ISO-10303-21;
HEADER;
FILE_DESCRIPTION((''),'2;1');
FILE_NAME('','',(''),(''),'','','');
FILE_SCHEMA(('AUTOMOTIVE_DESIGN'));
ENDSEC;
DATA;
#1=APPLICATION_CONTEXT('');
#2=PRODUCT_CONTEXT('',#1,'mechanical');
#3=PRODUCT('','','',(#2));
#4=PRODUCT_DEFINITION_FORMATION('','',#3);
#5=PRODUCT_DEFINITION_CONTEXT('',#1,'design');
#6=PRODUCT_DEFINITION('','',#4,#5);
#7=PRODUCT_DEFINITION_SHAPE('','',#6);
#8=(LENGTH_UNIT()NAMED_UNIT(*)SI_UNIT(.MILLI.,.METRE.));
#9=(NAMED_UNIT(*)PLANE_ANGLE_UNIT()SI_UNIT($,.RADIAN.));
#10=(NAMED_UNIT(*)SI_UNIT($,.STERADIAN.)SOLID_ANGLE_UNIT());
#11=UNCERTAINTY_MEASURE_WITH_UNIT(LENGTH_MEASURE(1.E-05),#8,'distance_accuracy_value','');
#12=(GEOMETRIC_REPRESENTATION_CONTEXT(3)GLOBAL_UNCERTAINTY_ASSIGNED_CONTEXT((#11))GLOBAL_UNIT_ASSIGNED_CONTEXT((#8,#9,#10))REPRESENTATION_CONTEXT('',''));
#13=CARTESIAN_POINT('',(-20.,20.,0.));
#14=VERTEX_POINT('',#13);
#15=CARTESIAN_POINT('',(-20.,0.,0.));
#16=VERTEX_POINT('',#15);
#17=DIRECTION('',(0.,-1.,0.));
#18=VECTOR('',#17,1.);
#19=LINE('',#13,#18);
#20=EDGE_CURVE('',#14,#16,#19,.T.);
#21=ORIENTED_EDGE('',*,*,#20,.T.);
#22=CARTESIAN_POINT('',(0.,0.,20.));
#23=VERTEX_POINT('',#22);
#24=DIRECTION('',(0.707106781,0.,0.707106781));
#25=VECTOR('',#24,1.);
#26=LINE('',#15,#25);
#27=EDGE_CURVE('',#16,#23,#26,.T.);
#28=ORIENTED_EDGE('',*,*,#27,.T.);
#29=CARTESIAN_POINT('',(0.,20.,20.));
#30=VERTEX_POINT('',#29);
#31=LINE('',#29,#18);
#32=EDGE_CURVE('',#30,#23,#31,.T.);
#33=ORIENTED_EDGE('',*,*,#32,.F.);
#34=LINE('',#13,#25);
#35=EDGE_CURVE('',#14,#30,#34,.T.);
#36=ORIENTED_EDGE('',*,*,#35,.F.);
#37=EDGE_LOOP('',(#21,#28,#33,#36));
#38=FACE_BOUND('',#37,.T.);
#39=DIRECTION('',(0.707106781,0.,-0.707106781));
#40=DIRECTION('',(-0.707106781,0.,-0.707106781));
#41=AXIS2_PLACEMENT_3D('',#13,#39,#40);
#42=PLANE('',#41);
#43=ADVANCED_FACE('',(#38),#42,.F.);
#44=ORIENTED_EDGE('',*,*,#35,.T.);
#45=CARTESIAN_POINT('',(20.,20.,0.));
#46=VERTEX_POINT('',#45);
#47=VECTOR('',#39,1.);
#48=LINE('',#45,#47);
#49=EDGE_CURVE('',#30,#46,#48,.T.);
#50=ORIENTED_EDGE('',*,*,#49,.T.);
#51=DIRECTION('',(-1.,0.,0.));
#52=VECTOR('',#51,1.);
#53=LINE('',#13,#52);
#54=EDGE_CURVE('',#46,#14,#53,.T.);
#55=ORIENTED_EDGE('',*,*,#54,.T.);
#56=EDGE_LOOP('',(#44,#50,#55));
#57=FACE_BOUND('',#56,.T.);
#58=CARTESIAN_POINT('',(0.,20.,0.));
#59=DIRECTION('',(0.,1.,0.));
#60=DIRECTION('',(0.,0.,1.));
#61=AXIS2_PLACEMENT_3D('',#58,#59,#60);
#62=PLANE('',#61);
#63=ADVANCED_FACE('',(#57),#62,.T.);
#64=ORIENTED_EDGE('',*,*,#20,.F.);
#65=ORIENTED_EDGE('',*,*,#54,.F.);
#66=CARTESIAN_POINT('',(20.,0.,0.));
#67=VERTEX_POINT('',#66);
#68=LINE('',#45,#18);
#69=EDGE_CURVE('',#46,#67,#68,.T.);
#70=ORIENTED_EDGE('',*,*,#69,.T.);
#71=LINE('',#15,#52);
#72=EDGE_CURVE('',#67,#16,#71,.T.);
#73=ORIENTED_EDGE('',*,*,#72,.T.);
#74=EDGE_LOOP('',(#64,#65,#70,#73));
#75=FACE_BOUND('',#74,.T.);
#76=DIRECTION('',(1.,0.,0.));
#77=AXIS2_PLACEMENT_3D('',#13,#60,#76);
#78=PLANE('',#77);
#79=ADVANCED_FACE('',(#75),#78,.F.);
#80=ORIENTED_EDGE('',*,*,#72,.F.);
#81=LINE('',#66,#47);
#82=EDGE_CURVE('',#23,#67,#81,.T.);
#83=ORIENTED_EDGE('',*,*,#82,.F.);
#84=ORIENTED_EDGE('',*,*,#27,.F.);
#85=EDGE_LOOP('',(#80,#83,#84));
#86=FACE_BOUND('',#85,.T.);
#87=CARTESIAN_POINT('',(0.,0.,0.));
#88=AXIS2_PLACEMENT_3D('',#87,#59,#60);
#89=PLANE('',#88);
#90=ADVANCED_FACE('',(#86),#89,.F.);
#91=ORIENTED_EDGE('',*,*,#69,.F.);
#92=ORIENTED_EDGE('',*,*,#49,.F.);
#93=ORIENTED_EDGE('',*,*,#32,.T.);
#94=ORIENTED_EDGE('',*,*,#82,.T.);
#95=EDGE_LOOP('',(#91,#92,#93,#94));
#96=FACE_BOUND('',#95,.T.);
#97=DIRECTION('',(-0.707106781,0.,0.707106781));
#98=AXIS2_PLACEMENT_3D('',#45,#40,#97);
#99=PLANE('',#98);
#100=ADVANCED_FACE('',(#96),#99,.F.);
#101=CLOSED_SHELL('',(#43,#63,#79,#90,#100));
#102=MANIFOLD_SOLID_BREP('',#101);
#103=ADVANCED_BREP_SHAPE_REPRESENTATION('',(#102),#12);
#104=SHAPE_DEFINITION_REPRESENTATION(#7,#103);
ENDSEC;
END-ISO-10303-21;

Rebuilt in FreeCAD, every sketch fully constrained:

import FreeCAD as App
import Part
import Sketcher
Q = App.Units.Quantity

doc = App.newDocument("Part")
params = doc.addObject("Spreadsheet::Sheet", "Params")
for row, (alias, value) in enumerate([
    ("sketch1_width", "40 mm"),
    ("pad1_length", "20 mm"),
], start=1):
    params.set(f"A{row}", alias)
    params.set(f"B{row}", "=" + value)
    params.setAlias(f"B{row}", alias)

body = doc.addObject("PartDesign::Body", "Body")

# Sketch on XZ plane
sketch1 = body.newObject("Sketcher::SketchObject", "Sketch")
sketch1.AttachmentSupport = (doc.getObject("XZ_Plane"), [""])
sketch1.MapMode = "FlatFace"
sketch1.addGeometry([
    Part.LineSegment(App.Vector(20, 0, 0), App.Vector(-20, 0, 0)),
    Part.LineSegment(App.Vector(-20, 0, 0), App.Vector(0, 20, 0)),
    Part.LineSegment(App.Vector(0, 20, 0), App.Vector(20, 0, 0)),
], False)
sketch1.addConstraint([
    Sketcher.Constraint("Coincident", 0, 2, 1, 1),
    Sketcher.Constraint("Coincident", 1, 2, 2, 1),
    Sketcher.Constraint("Coincident", 2, 2, 0, 1),
    Sketcher.Constraint("Horizontal", 0),
    Sketcher.Constraint("Symmetric", 0, 2, 2, 2, -1, 1),
    Sketcher.Constraint("PointOnObject", 1, 2, -2),
    Sketcher.Constraint("Perpendicular", 1, 2),
    Sketcher.Constraint("DistanceX", 0, 2, 0, 1, Q("40 mm")),
])
sketch1.setExpression("Constraints[7]", "Params.sketch1_width")
pad1 = body.newObject("PartDesign::Pad", "Pad")
pad1.Profile = sketch1
pad1.setExpression("Length", "Params.pad1_length")
pad1.Reversed = True

doc.recompute()
